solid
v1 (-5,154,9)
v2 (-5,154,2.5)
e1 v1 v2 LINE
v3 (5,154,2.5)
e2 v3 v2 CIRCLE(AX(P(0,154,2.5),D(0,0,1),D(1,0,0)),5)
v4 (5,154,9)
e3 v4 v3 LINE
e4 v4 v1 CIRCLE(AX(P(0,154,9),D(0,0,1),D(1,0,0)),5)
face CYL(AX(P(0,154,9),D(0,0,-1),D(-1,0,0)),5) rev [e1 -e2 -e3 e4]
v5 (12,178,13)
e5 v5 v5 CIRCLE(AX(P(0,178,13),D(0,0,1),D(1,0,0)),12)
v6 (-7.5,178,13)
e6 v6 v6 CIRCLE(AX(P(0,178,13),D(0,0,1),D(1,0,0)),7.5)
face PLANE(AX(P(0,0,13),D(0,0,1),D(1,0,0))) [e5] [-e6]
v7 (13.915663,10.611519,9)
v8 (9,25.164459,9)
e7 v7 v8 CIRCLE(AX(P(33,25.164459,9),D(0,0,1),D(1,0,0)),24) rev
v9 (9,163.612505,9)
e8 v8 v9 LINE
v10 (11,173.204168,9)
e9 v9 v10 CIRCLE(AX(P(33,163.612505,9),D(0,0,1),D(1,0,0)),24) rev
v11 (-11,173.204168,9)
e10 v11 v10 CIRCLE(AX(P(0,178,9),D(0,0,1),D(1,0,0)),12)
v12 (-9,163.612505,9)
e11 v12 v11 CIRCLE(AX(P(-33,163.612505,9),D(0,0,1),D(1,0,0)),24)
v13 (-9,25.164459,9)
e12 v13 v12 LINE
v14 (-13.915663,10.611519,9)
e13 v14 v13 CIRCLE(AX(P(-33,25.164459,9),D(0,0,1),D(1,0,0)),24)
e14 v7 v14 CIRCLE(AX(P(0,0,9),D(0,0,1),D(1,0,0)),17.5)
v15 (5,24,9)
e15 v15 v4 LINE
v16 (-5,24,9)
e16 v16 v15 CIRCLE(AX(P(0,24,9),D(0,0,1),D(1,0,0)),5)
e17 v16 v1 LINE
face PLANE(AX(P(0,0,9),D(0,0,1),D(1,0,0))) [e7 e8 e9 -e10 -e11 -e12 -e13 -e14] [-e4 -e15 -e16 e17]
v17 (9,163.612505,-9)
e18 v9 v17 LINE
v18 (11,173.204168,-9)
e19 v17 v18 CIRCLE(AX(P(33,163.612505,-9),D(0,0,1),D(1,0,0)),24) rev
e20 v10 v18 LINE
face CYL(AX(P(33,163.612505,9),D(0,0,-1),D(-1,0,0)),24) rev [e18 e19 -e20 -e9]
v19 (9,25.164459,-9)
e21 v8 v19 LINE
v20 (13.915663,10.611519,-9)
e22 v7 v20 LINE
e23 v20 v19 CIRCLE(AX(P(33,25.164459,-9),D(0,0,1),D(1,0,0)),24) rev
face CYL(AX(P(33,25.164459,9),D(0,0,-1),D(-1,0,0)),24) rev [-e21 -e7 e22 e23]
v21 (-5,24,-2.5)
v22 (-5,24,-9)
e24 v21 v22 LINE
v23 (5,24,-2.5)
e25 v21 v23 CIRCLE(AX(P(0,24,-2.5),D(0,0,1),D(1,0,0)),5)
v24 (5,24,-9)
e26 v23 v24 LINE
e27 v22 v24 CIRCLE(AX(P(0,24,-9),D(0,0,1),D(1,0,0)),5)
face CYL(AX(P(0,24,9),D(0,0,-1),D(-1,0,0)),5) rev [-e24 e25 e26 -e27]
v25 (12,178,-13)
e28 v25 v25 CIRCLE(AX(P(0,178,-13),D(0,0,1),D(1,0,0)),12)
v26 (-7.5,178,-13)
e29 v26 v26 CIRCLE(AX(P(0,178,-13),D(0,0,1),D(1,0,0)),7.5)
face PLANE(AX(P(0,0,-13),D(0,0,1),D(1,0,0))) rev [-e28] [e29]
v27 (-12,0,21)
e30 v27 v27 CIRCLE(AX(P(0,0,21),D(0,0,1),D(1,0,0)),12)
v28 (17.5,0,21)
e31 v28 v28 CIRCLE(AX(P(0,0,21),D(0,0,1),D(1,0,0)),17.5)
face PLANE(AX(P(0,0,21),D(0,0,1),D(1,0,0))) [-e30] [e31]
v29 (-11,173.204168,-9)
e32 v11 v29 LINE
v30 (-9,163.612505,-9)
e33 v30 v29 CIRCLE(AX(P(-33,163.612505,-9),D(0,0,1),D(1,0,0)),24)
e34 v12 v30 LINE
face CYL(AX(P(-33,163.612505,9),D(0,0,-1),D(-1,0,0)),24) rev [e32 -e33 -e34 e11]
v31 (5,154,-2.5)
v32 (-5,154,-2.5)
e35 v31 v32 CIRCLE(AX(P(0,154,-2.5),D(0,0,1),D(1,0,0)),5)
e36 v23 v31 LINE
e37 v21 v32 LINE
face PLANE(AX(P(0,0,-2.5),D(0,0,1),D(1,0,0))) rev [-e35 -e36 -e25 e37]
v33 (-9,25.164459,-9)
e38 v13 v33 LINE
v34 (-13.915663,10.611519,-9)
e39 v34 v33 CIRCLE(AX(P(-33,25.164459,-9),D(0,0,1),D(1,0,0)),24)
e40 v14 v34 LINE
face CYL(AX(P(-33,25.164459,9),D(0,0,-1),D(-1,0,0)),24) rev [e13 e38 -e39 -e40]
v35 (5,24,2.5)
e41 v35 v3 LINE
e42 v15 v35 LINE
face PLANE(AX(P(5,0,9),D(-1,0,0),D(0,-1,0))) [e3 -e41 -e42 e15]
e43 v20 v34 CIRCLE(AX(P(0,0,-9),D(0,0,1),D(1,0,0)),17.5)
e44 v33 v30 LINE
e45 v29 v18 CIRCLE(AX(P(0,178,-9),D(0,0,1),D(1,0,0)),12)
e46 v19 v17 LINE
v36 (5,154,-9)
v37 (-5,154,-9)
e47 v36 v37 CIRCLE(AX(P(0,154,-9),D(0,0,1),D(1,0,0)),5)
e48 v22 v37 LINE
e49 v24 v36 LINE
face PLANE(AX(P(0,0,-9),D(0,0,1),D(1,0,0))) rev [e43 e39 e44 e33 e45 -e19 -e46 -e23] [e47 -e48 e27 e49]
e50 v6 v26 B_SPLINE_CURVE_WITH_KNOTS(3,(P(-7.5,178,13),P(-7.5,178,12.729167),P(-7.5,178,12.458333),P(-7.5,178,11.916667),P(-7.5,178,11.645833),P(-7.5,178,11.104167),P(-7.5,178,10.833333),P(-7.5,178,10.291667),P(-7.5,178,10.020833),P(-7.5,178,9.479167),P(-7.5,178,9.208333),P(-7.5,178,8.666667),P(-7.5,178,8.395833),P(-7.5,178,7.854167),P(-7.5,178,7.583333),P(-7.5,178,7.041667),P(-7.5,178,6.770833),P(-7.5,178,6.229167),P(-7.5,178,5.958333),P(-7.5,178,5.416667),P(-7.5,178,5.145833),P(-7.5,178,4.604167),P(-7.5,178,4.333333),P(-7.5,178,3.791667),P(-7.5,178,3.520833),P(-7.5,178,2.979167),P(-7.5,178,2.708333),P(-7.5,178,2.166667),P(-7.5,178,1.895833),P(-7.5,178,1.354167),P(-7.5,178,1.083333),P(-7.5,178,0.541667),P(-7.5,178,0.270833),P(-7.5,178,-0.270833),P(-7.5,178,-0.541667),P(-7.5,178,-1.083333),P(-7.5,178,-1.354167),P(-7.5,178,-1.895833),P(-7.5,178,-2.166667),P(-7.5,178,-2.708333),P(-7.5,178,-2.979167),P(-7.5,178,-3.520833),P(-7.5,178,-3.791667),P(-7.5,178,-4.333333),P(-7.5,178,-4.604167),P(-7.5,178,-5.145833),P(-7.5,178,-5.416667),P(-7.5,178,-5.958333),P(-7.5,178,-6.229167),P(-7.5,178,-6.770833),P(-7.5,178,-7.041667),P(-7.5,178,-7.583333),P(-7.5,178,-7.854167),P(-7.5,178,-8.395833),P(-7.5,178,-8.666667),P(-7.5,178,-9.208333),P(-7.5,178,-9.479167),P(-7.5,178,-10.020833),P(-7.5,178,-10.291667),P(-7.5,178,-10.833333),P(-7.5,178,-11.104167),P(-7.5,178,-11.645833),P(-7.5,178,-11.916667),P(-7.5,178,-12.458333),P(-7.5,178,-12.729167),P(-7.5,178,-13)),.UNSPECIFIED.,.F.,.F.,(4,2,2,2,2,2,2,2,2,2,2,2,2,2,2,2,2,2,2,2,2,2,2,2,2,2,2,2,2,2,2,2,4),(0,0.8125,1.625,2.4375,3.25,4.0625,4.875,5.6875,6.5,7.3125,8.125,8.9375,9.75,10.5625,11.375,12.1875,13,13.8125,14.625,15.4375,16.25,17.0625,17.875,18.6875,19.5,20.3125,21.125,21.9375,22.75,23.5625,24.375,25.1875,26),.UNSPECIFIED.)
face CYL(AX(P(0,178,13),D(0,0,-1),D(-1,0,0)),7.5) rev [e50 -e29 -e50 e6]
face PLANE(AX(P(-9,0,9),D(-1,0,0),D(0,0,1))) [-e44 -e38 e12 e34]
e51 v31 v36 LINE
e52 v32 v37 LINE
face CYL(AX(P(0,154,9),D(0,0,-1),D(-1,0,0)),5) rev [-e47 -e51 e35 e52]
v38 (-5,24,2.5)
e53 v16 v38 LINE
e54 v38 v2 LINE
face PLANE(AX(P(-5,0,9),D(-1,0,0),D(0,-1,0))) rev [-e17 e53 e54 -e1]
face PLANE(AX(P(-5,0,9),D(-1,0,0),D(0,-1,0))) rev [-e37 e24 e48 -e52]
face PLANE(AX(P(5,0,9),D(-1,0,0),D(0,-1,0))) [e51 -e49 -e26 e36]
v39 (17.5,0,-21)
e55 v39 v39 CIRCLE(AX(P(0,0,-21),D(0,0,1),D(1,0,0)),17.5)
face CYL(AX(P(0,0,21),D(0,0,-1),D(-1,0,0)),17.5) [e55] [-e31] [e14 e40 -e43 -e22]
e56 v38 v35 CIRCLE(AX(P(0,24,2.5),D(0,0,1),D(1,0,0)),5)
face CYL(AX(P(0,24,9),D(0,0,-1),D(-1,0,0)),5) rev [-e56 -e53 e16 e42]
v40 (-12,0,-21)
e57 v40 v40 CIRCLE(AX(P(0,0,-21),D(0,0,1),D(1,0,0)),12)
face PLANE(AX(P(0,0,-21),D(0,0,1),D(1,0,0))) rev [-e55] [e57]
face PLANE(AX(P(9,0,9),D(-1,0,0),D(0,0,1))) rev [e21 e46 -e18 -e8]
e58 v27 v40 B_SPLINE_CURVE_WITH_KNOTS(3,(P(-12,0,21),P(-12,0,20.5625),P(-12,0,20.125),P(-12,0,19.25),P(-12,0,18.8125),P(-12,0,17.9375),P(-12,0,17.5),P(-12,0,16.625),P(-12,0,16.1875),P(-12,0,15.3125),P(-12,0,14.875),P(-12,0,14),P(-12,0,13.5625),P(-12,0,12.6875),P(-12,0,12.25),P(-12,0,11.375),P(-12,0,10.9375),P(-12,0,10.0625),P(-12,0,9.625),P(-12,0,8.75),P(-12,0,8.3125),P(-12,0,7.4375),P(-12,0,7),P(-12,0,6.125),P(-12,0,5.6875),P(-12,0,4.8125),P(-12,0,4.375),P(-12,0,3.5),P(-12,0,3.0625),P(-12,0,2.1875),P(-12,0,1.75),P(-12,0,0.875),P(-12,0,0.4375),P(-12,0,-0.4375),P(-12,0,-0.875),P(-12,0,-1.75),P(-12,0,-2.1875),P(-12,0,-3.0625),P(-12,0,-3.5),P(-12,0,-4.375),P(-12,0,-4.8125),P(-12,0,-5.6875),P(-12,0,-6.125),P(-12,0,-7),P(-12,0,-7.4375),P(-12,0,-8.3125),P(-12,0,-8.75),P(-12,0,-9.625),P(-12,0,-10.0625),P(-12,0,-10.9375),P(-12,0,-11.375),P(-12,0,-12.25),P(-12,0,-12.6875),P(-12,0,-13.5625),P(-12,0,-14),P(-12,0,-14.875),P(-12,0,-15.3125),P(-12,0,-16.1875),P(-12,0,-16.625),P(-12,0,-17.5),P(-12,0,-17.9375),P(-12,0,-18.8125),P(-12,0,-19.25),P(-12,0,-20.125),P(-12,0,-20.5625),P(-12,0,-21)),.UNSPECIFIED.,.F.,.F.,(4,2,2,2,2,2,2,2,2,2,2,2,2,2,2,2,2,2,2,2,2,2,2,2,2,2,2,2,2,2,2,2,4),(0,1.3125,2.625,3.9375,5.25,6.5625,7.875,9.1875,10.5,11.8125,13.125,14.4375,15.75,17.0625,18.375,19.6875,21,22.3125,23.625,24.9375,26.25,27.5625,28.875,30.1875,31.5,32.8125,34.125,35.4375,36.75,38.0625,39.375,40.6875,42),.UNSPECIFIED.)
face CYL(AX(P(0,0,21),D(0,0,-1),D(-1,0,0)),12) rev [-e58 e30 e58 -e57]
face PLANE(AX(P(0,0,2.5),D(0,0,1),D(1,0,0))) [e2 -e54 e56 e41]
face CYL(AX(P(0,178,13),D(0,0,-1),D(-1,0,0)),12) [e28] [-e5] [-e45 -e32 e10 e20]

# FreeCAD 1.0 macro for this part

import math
import FreeCAD as App
import Part
import Sketcher

V = App.Vector
Q = App.Units.Quantity

doc = App.newDocument("Part")
params = doc.addObject("Spreadsheet::Sheet", "Params")
for row, (alias, value) in enumerate([
    ("sketch1_diameter", "35 mm"),
    ("sketch1_diameter2", "24 mm"),
    ("pad1_length", "42 mm"),
    ("sketch2_diameter", "24 mm"),
    ("sketch2_diameter2", "15 mm"),
    ("pad2_length", "26 mm"),
    ("sketch3_radius", "24 mm"),
    ("sketch3_radius2", "12 mm"),
    ("sketch3_radius3", "5 mm"),
    ("sketch3_radius4", "17.5 mm"),
    ("sketch3_height", "130 mm"),
    ("pad3_length", "18 mm"),
    ("sketch4_radius", "5 mm"),
    ("sketch4_height", "130 mm"),
    ("pad4_length", "5 mm"),
], start=1):
    params.set(f"A{row}", alias)
    params.set(f"B{row}", "=" + value)
    params.setAlias(f"B{row}", alias)

body = doc.addObject("PartDesign::Body", "Body")

# Sketch on XY plane
sketch1 = body.newObject("Sketcher::SketchObject", "Sketch")
sketch1.AttachmentSupport = (doc.getObject("XY_Plane"), [""])
sketch1.MapMode = "FlatFace"
sketch1.addGeometry([
    Part.Circle(V(0, 0, 0), V(0, 0, 1), 17.5),
    Part.Circle(V(0, 0, 0), V(0, 0, 1), 12),
], False)
sketch1.addConstraint([
    Sketcher.Constraint("Coincident", 0, 3, -1, 1),
    Sketcher.Constraint("Coincident", 1, 3, -1, 1),
    Sketcher.Constraint("Diameter", 0, Q("35 mm")),
    Sketcher.Constraint("Diameter", 1, Q("24 mm")),
])
sketch1.setExpression("Constraints[2]", "Params.sketch1_diameter")
sketch1.setExpression("Constraints[3]", "Params.sketch1_diameter2")
pad1 = body.newObject("PartDesign::Pad", "Pad")
pad1.Profile = sketch1
pad1.setExpression("Length", "Params.pad1_length")
pad1.Midplane = True
body2 = doc.addObject("PartDesign::Body", "Body001")

# Sketch on XY plane
sketch2 = body2.newObject("Sketcher::SketchObject", "Sketch001")
sketch2.AttachmentSupport = (doc.getObject("XY_Plane001"), [""])
sketch2.MapMode = "FlatFace"
sketch2.addGeometry([
    Part.Circle(V(0, 178, 0), V(0, 0, 1), 12),
    Part.Circle(V(0, 178, 0), V(0, 0, 1), 7.5),
], False)
sketch2.addConstraint([
    Sketcher.Constraint("Coincident", 1, 3, 0, 3),
    Sketcher.Constraint("PointOnObject", 0, 3, -2),
    Sketcher.Constraint("Diameter", 0, Q("24 mm")),
    Sketcher.Constraint("Diameter", 1, Q("15 mm")),
    Sketcher.Constraint("DistanceY", -1, 1, 0, 3, Q("178 mm")),
])
sketch2.setExpression("Constraints[2]", "Params.sketch2_diameter")
sketch2.setExpression("Constraints[3]", "Params.sketch2_diameter2")
pad2 = body2.newObject("PartDesign::Pad", "Pad001")
pad2.Profile = sketch2
pad2.setExpression("Length", "Params.pad2_length")
pad2.Midplane = True
body.AllowCompound = True
doc.recompute()

boolean = body.newObject("PartDesign::Boolean", "Boolean")
boolean.Type = "Fuse"
boolean.addObjects([body2])

# Sketch on XY plane
sketch3 = body.newObject("Sketcher::SketchObject", "Sketch002")
sketch3.AttachmentSupport = (doc.getObject("XY_Plane"), [""])
sketch3.MapMode = "FlatFace"
sketch3.addGeometry([
    Part.LineSegment(V(-9, 163.612505, 0), V(-9, 25.164459, 0)),  # 0
    Part.ArcOfCircle(Part.Circle(V(-33, 25.164459, 0), V(0, 0, 1), 24), math.radians(-37.327671), math.radians(0)),  # 1
    Part.ArcOfCircle(Part.Circle(V(0, 0, 0), V(0, 0, 1), 17.5), math.radians(90), math.radians(142.672329)),  # 2
    Part.ArcOfCircle(Part.Circle(V(0, 0, 0), V(0, 0, 1), 17.5), math.radians(37.327671), math.radians(90)),  # 3
    Part.ArcOfCircle(Part.Circle(V(33, 25.164459, 0), V(0, 0, 1), 24), math.radians(180), math.radians(217.327671)),  # 4
    Part.LineSegment(V(9, 25.164459, 0), V(9, 163.612505, 0)),  # 5
    Part.ArcOfCircle(Part.Circle(V(33, 163.612505, 0), V(0, 0, 1), 24), math.radians(156.443536), math.radians(180)),  # 6
    Part.ArcOfCircle(Part.Circle(V(0, 178, 0), V(0, 0, 1), 12), math.radians(-156.443536), math.radians(-23.556464)),  # 7
    Part.ArcOfCircle(Part.Circle(V(-33, 163.612505, 0), V(0, 0, 1), 24), math.radians(0), math.radians(23.556464)),  # 8
    Part.LineSegment(V(5, 154, 0), V(5, 24, 0)),  # 9
    Part.ArcOfCircle(Part.Circle(V(0, 24, 0), V(0, 0, 1), 5), math.radians(180), math.radians(360)),  # 10
    Part.LineSegment(V(-5, 24, 0), V(-5, 154, 0)),  # 11
    Part.ArcOfCircle(Part.Circle(V(0, 154, 0), V(0, 0, 1), 5), math.radians(0), math.radians(180)),  # 12
], False)
sketch3.addConstraint([
    Sketcher.Constraint("Tangent", 0, 2, 1, 2),
    Sketcher.Constraint("Tangent", 1, 1, 2, 2),
    Sketcher.Constraint("Tangent", 2, 1, 3, 2),
    Sketcher.Constraint("Tangent", 3, 1, 4, 2),
    Sketcher.Constraint("Tangent", 4, 1, 5, 1),
    Sketcher.Constraint("Tangent", 5, 2, 6, 2),
    Sketcher.Constraint("Tangent", 6, 1, 7, 2),
    Sketcher.Constraint("Tangent", 7, 1, 8, 2),
    Sketcher.Constraint("Tangent", 8, 1, 0, 1),
    Sketcher.Constraint("Tangent", 9, 2, 10, 2),
    Sketcher.Constraint("Tangent", 10, 1, 11, 1),
    Sketcher.Constraint("Tangent", 11, 2, 12, 2),
    Sketcher.Constraint("Tangent", 12, 1, 9, 1),
    Sketcher.Constraint("Vertical", 0),
    Sketcher.Constraint("Vertical", 5),
    Sketcher.Constraint("Vertical", 9),
    Sketcher.Constraint("Vertical", 11),
    Sketcher.Constraint("Coincident", 2, 3, -1, 1),
    Sketcher.Constraint("Equal", 2, 3),
    Sketcher.Constraint("Equal", 1, 4),
    Sketcher.Constraint("Equal", 4, 6),
    Sketcher.Constraint("Equal", 6, 8),
    Sketcher.Constraint("Symmetric", 6, 3, 8, 3, -2),
    Sketcher.Constraint("PointOnObject", 10, 3, -2),
    Sketcher.Constraint("PointOnObject", 2, 1, -2),
    Sketcher.Constraint("Radius", 1, Q("24 mm")),
    Sketcher.Constraint("Radius", 7, Q("12 mm")),
    Sketcher.Constraint("Radius", 10, Q("5 mm")),
    Sketcher.Constraint("Radius", 2, Q("17.5 mm")),
    Sketcher.Constraint("DistanceY", 9, 2, 9, 1, Q("130 mm")),
    Sketcher.Constraint("DistanceX", 1, 3, -1, 1, Q("33 mm")),
    Sketcher.Constraint("DistanceY", -1, 1, 7, 3, Q("178 mm")),
    Sketcher.Constraint("DistanceY", -1, 1, 10, 3, Q("24 mm")),
])
sketch3.setExpression("Constraints[25]", "Params.sketch3_radius")
sketch3.setExpression("Constraints[26]", "Params.sketch3_radius2")
sketch3.setExpression("Constraints[27]", "Params.sketch3_radius3")
sketch3.setExpression("Constraints[28]", "Params.sketch3_radius4")
sketch3.setExpression("Constraints[29]", "Params.sketch3_height")
pad3 = body.newObject("PartDesign::Pad", "Pad002")
pad3.Profile = sketch3
pad3.setExpression("Length", "Params.pad3_length")
pad3.Midplane = True

# Sketch on XY plane
sketch4 = body.newObject("Sketcher::SketchObject", "Sketch003")
sketch4.AttachmentSupport = (doc.getObject("XY_Plane"), [""])
sketch4.MapMode = "FlatFace"
sketch4.addGeometry([
    Part.LineSegment(V(5, 24, 0), V(5, 154, 0)),
    Part.ArcOfCircle(Part.Circle(V(0, 154, 0), V(0, 0, 1), 5), math.radians(0), math.radians(180)),
    Part.LineSegment(V(-5, 154, 0), V(-5, 24, 0)),
    Part.ArcOfCircle(Part.Circle(V(0, 24, 0), V(0, 0, 1), 5), math.radians(180), math.radians(360)),
], False)
sketch4.addConstraint([
    Sketcher.Constraint("Tangent", 0, 2, 1, 1),
    Sketcher.Constraint("Tangent", 1, 2, 2, 1),
    Sketcher.Constraint("Tangent", 2, 2, 3, 1),
    Sketcher.Constraint("Tangent", 3, 2, 0, 1),
    Sketcher.Constraint("Vertical", 0),
    Sketcher.Constraint("Vertical", 2),
    Sketcher.Constraint("PointOnObject", 1, 3, -2),
    Sketcher.Constraint("Radius", 1, Q("5 mm")),
    Sketcher.Constraint("DistanceY", 0, 1, 0, 2, Q("130 mm")),
    Sketcher.Constraint("DistanceY", -1, 1, 1, 3, Q("154 mm")),
])
sketch4.setExpression("Constraints[7]", "Params.sketch4_radius")
sketch4.setExpression("Constraints[8]", "Params.sketch4_height")
pad4 = body.newObject("PartDesign::Pad", "Pad003")
pad4.Profile = sketch4
pad4.setExpression("Length", "Params.pad4_length")
pad4.Midplane = True

doc.recompute()
